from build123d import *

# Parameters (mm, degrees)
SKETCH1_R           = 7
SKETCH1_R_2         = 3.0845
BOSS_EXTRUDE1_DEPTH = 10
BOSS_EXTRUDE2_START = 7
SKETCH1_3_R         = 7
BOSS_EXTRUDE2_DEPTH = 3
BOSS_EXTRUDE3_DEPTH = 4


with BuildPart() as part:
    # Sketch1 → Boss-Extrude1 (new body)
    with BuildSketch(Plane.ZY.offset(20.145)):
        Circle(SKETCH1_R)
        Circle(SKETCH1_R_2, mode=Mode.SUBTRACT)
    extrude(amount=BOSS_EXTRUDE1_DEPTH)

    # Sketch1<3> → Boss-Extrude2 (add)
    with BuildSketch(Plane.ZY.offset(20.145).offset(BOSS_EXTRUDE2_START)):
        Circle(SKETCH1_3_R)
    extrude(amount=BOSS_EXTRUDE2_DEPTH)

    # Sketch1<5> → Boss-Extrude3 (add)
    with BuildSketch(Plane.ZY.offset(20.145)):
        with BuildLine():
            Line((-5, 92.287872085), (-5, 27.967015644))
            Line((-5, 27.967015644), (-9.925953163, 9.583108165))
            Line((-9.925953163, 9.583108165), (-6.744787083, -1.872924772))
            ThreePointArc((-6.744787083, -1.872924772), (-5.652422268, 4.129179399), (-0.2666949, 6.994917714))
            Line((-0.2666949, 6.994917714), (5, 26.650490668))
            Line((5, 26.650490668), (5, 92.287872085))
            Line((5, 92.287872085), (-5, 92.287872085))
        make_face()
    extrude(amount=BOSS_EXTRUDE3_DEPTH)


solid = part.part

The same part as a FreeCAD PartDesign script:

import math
import FreeCAD as App
import Part
import Sketcher
Q = App.Units.Quantity

doc = App.newDocument("Part")
body = doc.addObject("PartDesign::Body", "Body")

# Sketch on YZ plane
sketch1 = body.newObject("Sketcher::SketchObject", "Sketch")
sketch1.AttachmentSupport = (doc.getObject("YZ_Plane"), [""])
sketch1.MapMode = "FlatFace"
sketch1.AttachmentOffset = App.Placement(App.Vector(0, 0, -20.145), App.Rotation())
sketch1.addGeometry(Part.Circle(App.Vector(0, 0, 0), App.Vector(0, 0, 1), 7), False)
sketch1.addGeometry(Part.Circle(App.Vector(0, 0, 0), App.Vector(0, 0, 1), 3.1), False)
sketch1.addConstraint(Sketcher.Constraint("Coincident", 0, 3, -1, 1))
sketch1.addConstraint(Sketcher.Constraint("Coincident", 1, 3, -1, 1))
sketch1.addConstraint(Sketcher.Constraint("Diameter", 0, Q("14 mm")))
sketch1.addConstraint(Sketcher.Constraint("Diameter", 1, Q("6.169 mm")))
pad1 = body.newObject("PartDesign::Pad", "Pad")
pad1.Profile = sketch1
pad1.Length = 10
pad1.Reversed = True

# Sketch on YZ plane
sketch2 = body.newObject("Sketcher::SketchObject", "Sketch001")
sketch2.AttachmentSupport = (doc.getObject("YZ_Plane"), [""])
sketch2.MapMode = "FlatFace"
sketch2.AttachmentOffset = App.Placement(App.Vector(0, 0, -27.145), App.Rotation())
sketch2.addGeometry(Part.Circle(App.Vector(0, 0, 0), App.Vector(0, 0, 1), 7), False)
sketch2.addConstraint(Sketcher.Constraint("Coincident", 0, 3, -1, 1))
sketch2.addConstraint(Sketcher.Constraint("Diameter", 0, Q("14 mm")))
pad2 = body.newObject("PartDesign::Pad", "Pad001")
pad2.Profile = sketch2
pad2.Length = 3
pad2.Reversed = True

# Sketch on YZ plane
sketch3 = body.newObject("Sketcher::SketchObject", "Sketch002")
sketch3.AttachmentSupport = (doc.getObject("YZ_Plane"), [""])
sketch3.MapMode = "FlatFace"
sketch3.AttachmentOffset = App.Placement(App.Vector(0, 0, -20.145), App.Rotation())
sketch3.addGeometry(Part.LineSegment(App.Vector(92, -5, 0), App.Vector(28, -5, 0)), False)
sketch3.addGeometry(Part.LineSegment(App.Vector(28, -5, 0), App.Vector(10, -10, 0)), False)
sketch3.addGeometry(Part.LineSegment(App.Vector(10, -10, 0), App.Vector(-2, -7, 0)), False)
sketch3.addGeometry(Part.ArcOfCircle(Part.Circle(App.Vector(0, 0, 0), App.Vector(0, 0, 1), 7), math.radians(-106), math.radians(-2)), False)
sketch3.addGeometry(Part.LineSegment(App.Vector(7, 0, 0), App.Vector(27, 5, 0)), False)
sketch3.addGeometry(Part.LineSegment(App.Vector(27, 5, 0), App.Vector(92, 5, 0)), False)
sketch3.addGeometry(Part.LineSegment(App.Vector(92, 5, 0), App.Vector(92, -5, 0)), False)
sketch3.addConstraint(Sketcher.Constraint("Coincident", 0, 2, 1, 1))
sketch3.addConstraint(Sketcher.Constraint("Coincident", 1, 2, 2, 1))
sketch3.addConstraint(Sketcher.Constraint("Tangent", 2, 2, 3, 1))
sketch3.addConstraint(Sketcher.Constraint("Coincident", 3, 2, 4, 1))
sketch3.addConstraint(Sketcher.Constraint("Coincident", 4, 2, 5, 1))
sketch3.addConstraint(Sketcher.Constraint("Coincident", 5, 2, 6, 1))
sketch3.addConstraint(Sketcher.Constraint("Coincident", 6, 2, 0, 1))
sketch3.addConstraint(Sketcher.Constraint("Horizontal", 0))
sketch3.addConstraint(Sketcher.Constraint("Horizontal", 5))
sketch3.addConstraint(Sketcher.Constraint("Vertical", 6))
sketch3.addConstraint(Sketcher.Constraint("Coincident", 3, 3, -1, 1))
sketch3.addConstraint(Sketcher.Constraint("Parallel", 1, 4))
sketch3.addConstraint(Sketcher.Constraint("Radius", 3, Q("7 mm")))
sketch3.addConstraint(Sketcher.Constraint("DistanceY", 6, 2, 6, 1, Q("10 mm")))
sketch3.addConstraint(Sketcher.Constraint("Angle", 1, Q("-165 deg")))
sketch3.addConstraint(Sketcher.Constraint("DistanceY", 0, 2, -1, 1, Q("5 mm")))
sketch3.addConstraint(Sketcher.Constraint("DistanceX", 5, 1, 5, 2, Q("65.637381 mm")))
sketch3.addConstraint(Sketcher.Constraint("Distance", 1, Q("19.032422 mm")))
sketch3.addConstraint(Sketcher.Constraint("DistanceX", 0, 2, 0, 1, Q("64.320856 mm")))
sketch3.addConstraint(Sketcher.Constraint("DistanceX", -1, 1, 1, 2, Q("9.583108 mm")))
pad3 = body.newObject("PartDesign::Pad", "Pad002")
pad3.Profile = sketch3
pad3.Length = 4
pad3.Reversed = True

doc.recompute()
